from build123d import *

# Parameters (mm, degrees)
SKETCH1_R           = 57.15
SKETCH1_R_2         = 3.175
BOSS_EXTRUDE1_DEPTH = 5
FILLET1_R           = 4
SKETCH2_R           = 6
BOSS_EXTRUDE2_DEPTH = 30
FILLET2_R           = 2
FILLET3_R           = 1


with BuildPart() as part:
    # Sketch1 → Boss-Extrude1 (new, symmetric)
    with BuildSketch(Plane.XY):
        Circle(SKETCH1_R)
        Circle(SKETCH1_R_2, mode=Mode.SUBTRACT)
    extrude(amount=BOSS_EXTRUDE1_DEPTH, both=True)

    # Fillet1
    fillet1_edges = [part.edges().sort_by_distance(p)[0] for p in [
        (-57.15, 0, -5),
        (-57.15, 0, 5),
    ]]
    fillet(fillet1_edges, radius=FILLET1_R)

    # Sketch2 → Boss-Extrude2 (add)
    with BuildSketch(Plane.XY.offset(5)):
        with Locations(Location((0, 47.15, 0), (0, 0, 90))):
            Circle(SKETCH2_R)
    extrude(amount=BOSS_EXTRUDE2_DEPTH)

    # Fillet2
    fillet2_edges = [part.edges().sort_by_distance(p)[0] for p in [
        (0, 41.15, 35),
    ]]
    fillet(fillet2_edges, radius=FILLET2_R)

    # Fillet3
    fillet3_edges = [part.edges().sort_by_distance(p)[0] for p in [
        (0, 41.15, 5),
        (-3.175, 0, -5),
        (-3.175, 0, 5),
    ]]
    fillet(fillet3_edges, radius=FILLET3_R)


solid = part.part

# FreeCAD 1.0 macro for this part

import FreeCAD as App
import Part
import Sketcher

V = App.Vector


def edges_at(feature, points):
    """Names of the edges that pass closest to the given points."""
    edges = feature.Shape.Edges
    near = lambda p: min(range(len(edges)), key=lambda i: edges[i].distToShape(Part.Vertex(*p))[0])
    return sorted({f"Edge{near(p) + 1}" for p in points})

doc = App.newDocument("Part")
body = doc.addObject("PartDesign::Body", "Body")

# Sketch on XY plane
sketch1 = body.newObject("Sketcher::SketchObject", "Sketch")
sketch1.AttachmentSupport = (doc.getObject("XY_Plane"), [""])
sketch1.MapMode = "FlatFace"
sketch1.addGeometry(Part.Circle(V(0, 0, 0), V(0, 0, 1), 57.15), False)
sketch1.addGeometry(Part.Circle(V(0, 0, 0), V(0, 0, 1), 3.175), False)
sketch1.addConstraint(Sketcher.Constraint("Coincident", 0, 3, -1, 1))
sketch1.addConstraint(Sketcher.Constraint("Coincident", 1, 3, -1, 1))
sketch1.addConstraint(Sketcher.Constraint("Diameter", 0, 114.3))
sketch1.addConstraint(Sketcher.Constraint("Diameter", 1, 6.35))
pad1 = body.newObject("PartDesign::Pad", "Pad")
pad1.Profile = sketch1
pad1.Length = 10
pad1.Midplane = True
doc.recompute()

fillet = body.newObject("PartDesign::Fillet", "Fillet")
fillet.Base = (pad1, edges_at(pad1, [(-57.15, 0, -5), (-57.15, 0, 5)]))
fillet.Radius = 4

# Sketch on XY plane
sketch2 = body.newObject("Sketcher::SketchObject", "Sketch001")
sketch2.AttachmentSupport = (doc.getObject("XY_Plane"), [""])
sketch2.MapMode = "FlatFace"
sketch2.AttachmentOffset = App.Placement(V(0, 0, 5), App.Rotation())
sketch2.addGeometry(Part.Circle(V(0, 47.15, 0), V(0, 0, 1), 6), False)
sketch2.addConstraint(Sketcher.Constraint("PointOnObject", 0, 3, -2))
sketch2.addConstraint(Sketcher.Constraint("Diameter", 0, 12.0))
sketch2.addConstraint(Sketcher.Constraint("DistanceY", -1, 1, 0, 3, 47.15))
pad2 = body.newObject("PartDesign::Pad", "Pad001")
pad2.Profile = sketch2
pad2.Length = 30
doc.recompute()

fillet2 = body.newObject("PartDesign::Fillet", "Fillet001")
fillet2.Base = (pad2, edges_at(pad2, [(0, 41.15, 35)]))
fillet2.Radius = 2
doc.recompute()

fillet3 = body.newObject("PartDesign::Fillet", "Fillet002")
fillet3.Base = (fillet2, edges_at(fillet2, [(0, 41.15, 5), (-3.175, 0, -5), (-3.175, 0, 5)]))
fillet3.Radius = 1

doc.recompute()
